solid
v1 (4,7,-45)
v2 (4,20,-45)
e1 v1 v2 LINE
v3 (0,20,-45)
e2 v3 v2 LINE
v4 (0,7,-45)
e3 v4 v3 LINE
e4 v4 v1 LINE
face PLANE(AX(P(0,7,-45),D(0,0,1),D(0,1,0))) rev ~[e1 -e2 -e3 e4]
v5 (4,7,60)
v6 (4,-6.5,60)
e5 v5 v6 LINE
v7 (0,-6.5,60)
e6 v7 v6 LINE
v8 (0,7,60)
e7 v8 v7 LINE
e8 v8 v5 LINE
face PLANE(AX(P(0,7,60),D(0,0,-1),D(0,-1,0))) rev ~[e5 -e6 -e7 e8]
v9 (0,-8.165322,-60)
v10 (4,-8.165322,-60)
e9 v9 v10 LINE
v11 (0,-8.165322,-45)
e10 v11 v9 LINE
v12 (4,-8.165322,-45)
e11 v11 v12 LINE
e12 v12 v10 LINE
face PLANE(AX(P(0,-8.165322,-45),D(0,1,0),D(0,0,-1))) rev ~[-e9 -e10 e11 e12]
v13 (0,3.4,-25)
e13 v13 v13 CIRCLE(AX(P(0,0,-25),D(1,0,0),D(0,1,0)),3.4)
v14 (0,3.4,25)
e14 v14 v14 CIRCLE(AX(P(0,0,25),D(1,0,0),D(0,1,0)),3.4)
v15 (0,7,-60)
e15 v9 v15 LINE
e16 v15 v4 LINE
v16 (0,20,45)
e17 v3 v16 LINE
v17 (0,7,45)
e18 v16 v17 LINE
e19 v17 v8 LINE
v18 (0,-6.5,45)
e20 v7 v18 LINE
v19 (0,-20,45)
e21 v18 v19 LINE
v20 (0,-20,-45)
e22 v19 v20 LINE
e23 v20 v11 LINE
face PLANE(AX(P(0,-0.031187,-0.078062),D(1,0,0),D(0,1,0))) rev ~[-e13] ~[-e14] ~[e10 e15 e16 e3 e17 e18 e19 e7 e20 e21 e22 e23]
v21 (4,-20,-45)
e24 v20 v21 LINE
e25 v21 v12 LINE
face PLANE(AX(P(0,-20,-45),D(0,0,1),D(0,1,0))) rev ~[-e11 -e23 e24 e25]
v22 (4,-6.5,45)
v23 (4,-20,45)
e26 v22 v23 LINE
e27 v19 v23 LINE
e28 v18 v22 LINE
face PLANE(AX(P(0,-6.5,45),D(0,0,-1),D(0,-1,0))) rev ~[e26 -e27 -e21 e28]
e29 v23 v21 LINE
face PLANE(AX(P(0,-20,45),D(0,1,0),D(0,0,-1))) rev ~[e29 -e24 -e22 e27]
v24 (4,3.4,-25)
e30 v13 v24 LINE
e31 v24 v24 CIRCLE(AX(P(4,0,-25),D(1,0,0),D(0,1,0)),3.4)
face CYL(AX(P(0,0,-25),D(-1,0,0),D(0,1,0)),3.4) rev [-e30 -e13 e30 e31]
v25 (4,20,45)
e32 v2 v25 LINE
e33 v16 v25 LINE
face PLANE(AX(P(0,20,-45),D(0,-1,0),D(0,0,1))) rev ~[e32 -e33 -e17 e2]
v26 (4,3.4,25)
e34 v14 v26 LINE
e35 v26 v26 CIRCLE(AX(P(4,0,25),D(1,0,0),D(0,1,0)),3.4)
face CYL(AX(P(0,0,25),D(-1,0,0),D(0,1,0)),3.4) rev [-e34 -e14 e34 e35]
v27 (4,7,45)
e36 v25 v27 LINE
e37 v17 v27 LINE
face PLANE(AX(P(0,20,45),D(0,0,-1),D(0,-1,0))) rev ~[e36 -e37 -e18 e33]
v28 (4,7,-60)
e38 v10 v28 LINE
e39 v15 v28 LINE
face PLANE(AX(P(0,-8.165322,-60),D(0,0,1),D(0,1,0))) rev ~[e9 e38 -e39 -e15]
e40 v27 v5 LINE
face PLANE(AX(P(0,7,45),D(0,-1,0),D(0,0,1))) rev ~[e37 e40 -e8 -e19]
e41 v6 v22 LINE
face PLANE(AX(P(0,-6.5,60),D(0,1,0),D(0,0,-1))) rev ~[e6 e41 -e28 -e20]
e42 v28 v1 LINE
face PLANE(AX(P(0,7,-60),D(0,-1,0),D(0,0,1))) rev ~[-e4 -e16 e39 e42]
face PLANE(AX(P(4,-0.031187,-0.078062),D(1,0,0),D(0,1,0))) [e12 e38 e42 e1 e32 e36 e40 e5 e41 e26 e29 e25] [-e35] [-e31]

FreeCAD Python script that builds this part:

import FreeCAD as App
import Part
import Sketcher

V = App.Vector


def add_polygon(sketch, points):
    """Adds a closed chain of lines whose ends are joined by coincident constraints."""
    first, n = sketch.GeometryCount, len(points)
    for a, b in zip(points, points[1:] + points[:1]):
        sketch.addGeometry(Part.LineSegment(App.Vector(*a, 0), App.Vector(*b, 0)), False)
    for i in range(n):
        sketch.addConstraint(Sketcher.Constraint("Coincident", first + i, 2, first + (i + 1) % n, 1))

doc = App.newDocument("Part")
params = doc.addObject("Spreadsheet::Sheet", "Params")
for row, (alias, value) in enumerate([
    ("sketch1_diameter", "6.8 mm"),
    ("sketch1_width", "13 mm"),
    ("sketch1_height", "15 mm"),
    ("sketch1_height2", "90 mm"),
    ("sketch1_width2", "13.5 mm"),
    ("pad1_length", "4 mm"),
], start=1):
    params.set(f"A{row}", alias)
    params.set(f"B{row}", "=" + value)
    params.setAlias(f"B{row}", alias)

body = doc.addObject("PartDesign::Body", "Body")

# Sketch on YZ plane
sketch1 = body.newObject("Sketcher::SketchObject", "Sketch")
sketch1.AttachmentSupport = (doc.getObject("YZ_Plane"), [""])
sketch1.MapMode = "FlatFace"
add_polygon(sketch1, [(-8.2, -45), (-8.2, -60), (7, -60), (7, -45), (20, -45), (20, 45), (7, 45), (7, 60), (-6.5, 60), (-6.5, 45), (-20, 45), (-20, -45)])  # lines 0-11
sketch1.addGeometry(Part.Circle(V(0, -25, 0), V(0, 0, 1), 3.4), False)  # 12
sketch1.addGeometry(Part.Circle(V(0, 25, 0), V(0, 0, 1), 3.4), False)  # 13
sketch1.addConstraint([
    Sketcher.Constraint("Vertical", 0),
    Sketcher.Constraint("Horizontal", 1),
    Sketcher.Constraint("Vertical", 2),
    Sketcher.Constraint("Horizontal", 3),
    Sketcher.Constraint("Vertical", 4),
    Sketcher.Constraint("Horizontal", 5),
    Sketcher.Constraint("Vertical", 6),
    Sketcher.Constraint("Horizontal", 7),
    Sketcher.Constraint("Vertical", 8),
    Sketcher.Constraint("Horizontal", 9),
    Sketcher.Constraint("Vertical", 10),
    Sketcher.Constraint("Horizontal", 11),
    Sketcher.Constraint("Equal", 12, 13),
    Sketcher.Constraint("Symmetric", 12, 3, 13, 3, -1, 1),
    Sketcher.Constraint("Symmetric", 3, 2, 9, 2, -1, 1),
    Sketcher.Constraint("Symmetric", 2, 2, 5, 2, -1),
    Sketcher.Constraint("PointOnObject", 12, 3, -2),
    Sketcher.Constraint("Horizontal", 3, 2, 10, 2),
    Sketcher.Constraint("Equal", 7, 9),
    Sketcher.Constraint("Equal", 2, 6),
    Sketcher.Constraint("Diameter", 12, 6.8),
    Sketcher.Constraint("DistanceX", 3, 1, 3, 2, 13.0),
    Sketcher.Constraint("DistanceY", 0, 2, 0, 1, 15.0),
    Sketcher.Constraint("DistanceY", 4, 1, 4, 2, 90.0),
    Sketcher.Constraint("DistanceX", 7, 2, 7, 1, 13.5),
    Sketcher.Constraint("DistanceY", 12, 3, -1, 1, 25.0),
    Sketcher.Constraint("DistanceX", 1, 1, 1, 2, 15.165322),
])
sketch1.setExpression("Constraints[32]", "Params.sketch1_diameter")
sketch1.setExpression("Constraints[33]", "Params.sketch1_width")
sketch1.setExpression("Constraints[34]", "Params.sketch1_height")
sketch1.setExpression("Constraints[35]", "Params.sketch1_height2")
sketch1.setExpression("Constraints[36]", "Params.sketch1_width2")
pad1 = body.newObject("PartDesign::Pad", "Pad")
pad1.Profile = sketch1
pad1.setExpression("Length", "Params.pad1_length")

doc.recompute()
